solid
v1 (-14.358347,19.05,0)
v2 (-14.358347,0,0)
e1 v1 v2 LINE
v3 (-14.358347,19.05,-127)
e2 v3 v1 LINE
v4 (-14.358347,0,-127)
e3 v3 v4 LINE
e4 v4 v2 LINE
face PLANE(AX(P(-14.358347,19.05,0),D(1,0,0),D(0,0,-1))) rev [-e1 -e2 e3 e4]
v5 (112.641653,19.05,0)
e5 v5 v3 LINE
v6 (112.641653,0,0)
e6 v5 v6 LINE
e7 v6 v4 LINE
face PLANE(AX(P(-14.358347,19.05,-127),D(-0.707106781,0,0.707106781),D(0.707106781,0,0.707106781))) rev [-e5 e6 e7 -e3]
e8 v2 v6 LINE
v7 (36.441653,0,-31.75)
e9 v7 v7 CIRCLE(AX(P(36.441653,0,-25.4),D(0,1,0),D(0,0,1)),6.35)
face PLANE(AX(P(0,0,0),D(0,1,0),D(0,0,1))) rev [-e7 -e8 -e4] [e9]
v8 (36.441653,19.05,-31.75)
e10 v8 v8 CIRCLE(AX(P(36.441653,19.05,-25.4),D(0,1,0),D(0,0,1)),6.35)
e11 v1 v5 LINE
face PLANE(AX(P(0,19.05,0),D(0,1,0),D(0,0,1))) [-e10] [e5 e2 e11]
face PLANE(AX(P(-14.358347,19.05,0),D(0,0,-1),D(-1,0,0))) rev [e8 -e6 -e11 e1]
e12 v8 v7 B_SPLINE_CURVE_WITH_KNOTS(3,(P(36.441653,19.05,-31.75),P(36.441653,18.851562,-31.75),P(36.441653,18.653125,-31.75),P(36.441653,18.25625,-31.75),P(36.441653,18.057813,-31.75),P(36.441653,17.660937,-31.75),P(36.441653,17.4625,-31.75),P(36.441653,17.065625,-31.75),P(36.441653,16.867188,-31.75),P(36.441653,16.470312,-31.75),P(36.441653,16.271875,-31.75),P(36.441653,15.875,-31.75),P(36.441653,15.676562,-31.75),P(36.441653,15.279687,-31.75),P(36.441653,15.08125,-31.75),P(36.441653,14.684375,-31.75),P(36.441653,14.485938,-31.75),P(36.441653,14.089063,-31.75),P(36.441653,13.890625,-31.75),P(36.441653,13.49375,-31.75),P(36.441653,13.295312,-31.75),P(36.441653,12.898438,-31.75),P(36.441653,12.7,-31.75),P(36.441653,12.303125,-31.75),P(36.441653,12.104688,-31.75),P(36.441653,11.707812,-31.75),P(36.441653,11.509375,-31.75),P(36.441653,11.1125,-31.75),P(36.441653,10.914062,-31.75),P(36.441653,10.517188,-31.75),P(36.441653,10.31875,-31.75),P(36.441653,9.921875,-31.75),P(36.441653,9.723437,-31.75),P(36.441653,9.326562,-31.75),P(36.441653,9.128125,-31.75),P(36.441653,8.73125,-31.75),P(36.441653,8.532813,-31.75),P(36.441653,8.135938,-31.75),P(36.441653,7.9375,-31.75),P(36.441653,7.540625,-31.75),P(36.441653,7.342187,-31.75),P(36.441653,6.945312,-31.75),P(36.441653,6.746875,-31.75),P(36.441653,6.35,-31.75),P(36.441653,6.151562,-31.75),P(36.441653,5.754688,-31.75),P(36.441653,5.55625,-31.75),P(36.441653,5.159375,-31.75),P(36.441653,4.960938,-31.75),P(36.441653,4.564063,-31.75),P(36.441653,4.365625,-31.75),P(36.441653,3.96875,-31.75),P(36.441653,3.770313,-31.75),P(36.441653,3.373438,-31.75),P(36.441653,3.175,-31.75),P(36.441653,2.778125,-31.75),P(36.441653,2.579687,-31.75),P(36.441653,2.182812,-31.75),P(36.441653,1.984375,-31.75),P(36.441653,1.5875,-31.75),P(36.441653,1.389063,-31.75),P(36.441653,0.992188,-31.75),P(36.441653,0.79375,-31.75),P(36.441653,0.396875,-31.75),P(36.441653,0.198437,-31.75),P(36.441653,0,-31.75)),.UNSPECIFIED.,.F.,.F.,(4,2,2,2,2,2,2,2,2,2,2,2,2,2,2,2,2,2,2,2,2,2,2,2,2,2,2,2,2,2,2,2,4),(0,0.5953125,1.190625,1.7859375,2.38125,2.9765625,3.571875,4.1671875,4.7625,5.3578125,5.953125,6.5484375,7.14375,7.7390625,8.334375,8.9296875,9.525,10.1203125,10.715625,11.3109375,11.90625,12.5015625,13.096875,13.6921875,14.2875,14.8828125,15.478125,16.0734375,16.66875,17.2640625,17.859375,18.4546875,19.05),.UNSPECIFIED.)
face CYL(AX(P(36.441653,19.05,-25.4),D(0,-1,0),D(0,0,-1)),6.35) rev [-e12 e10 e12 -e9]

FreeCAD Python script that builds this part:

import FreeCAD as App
import Part
import Sketcher
Q = App.Units.Quantity


def add_polygon(sketch, points):
    """Adds a closed chain of lines whose ends are joined by coincident constraints."""
    first, n = sketch.GeometryCount, len(points)
    for a, b in zip(points, points[1:] + points[:1]):
        sketch.addGeometry(Part.LineSegment(App.Vector(*a, 0), App.Vector(*b, 0)), False)
    for i in range(n):
        sketch.addConstraint(Sketcher.Constraint("Coincident", first + i, 2, first + (i + 1) % n, 1))

doc = App.newDocument("Part")
body = doc.addObject("PartDesign::Body", "Body")

# Sketch on XZ plane
sketch1 = doc.addObject("Sketcher::SketchObject", "Sketch")
body.addObject(sketch1)
sketch1.AttachmentSupport = (doc.XZ_Plane, [""])
sketch1.MapMode = "FlatFace"
add_polygon(sketch1, [(-14, -127), (-14, 0), (113, 0)])  # lines 0-2
sketch1.addGeometry(Part.Circle(App.Vector(36, -25, 0), App.Vector(0, 0, 1), 6), False)  # 3
sketch1.addConstraint([
    Sketcher.Constraint("Vertical", 0),
    Sketcher.Constraint("Horizontal", 1),
    Sketcher.Constraint("PointOnObject", 0, 2, -1),
    Sketcher.Constraint("Equal", 1, 0),
    Sketcher.Constraint("Diameter", 3, Q("0.5 in")),
    Sketcher.Constraint("DistanceX", 1, 1, 1, 2, Q("5 in")),
    Sketcher.Constraint("DistanceY", 3, 3, -1, 1, Q("1 in")),
    Sketcher.Constraint("DistanceX", 0, 2, 3, 3, Q("2 in")),
    Sketcher.Constraint("DistanceX", -1, 1, 3, 3, 36.441653),
])
pad1 = doc.addObject("PartDesign::Pad", "Pad")
body.addObject(pad1)
pad1.Profile = sketch1
pad1.Length = Q("0.75 in")
pad1.Reversed = True

doc.recompute()
